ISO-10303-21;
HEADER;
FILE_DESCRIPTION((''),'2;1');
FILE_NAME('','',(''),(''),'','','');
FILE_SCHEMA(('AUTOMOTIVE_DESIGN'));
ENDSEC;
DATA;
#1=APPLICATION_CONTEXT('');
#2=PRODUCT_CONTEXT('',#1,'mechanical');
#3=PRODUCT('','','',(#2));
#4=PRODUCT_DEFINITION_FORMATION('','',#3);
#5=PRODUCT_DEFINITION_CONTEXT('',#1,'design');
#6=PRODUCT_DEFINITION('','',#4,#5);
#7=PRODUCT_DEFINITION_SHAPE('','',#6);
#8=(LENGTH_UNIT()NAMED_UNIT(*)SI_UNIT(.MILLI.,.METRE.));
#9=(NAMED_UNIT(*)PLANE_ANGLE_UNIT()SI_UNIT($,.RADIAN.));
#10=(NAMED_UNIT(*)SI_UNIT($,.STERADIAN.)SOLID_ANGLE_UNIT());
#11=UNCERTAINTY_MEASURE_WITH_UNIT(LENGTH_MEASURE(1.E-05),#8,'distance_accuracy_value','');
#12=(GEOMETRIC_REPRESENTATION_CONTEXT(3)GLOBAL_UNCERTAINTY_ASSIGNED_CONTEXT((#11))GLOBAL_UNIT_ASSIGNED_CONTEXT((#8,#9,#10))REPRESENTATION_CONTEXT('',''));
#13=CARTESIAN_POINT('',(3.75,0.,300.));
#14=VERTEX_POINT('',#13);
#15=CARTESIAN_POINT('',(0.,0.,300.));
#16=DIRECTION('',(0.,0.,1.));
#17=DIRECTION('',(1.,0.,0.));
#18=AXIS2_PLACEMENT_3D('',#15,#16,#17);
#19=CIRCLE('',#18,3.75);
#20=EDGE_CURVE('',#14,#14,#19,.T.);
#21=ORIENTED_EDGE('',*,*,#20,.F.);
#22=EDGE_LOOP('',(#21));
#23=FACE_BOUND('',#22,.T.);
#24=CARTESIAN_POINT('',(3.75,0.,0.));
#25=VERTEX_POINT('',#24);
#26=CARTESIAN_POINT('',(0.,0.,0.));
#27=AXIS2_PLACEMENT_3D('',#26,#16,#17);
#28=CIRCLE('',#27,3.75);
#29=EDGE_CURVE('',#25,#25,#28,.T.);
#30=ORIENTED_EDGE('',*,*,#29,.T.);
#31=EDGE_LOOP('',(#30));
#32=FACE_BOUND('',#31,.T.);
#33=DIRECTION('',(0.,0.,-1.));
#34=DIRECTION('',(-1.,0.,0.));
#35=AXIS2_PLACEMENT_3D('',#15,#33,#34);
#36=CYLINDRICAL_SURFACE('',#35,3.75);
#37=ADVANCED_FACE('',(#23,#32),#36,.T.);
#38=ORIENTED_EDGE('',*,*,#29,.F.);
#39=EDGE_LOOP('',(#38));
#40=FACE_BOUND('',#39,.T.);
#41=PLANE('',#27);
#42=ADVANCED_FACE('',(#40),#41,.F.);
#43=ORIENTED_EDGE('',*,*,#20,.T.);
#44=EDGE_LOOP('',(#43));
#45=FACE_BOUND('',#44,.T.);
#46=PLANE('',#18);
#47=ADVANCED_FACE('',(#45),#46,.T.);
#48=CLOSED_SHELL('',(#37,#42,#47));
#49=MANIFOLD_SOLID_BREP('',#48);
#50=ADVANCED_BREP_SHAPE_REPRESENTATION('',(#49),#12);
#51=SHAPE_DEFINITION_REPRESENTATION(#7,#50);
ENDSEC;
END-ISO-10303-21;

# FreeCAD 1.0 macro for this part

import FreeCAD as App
import Part
import Sketcher

V = App.Vector

doc = App.newDocument("Part")
body = doc.addObject("PartDesign::Body", "Body")

sketch1 = body.newObject("Sketcher::SketchObject", "Sketch")
sketch1.AttachmentSupport = (doc.getObject("XY_Plane"), [""])
sketch1.MapMode = "FlatFace"
sketch1.addGeometry(Part.Circle(V(0, 0, 0), V(0, 0, 1), 3.8), False)
sketch1.addConstraint(Sketcher.Constraint("Coincident", 0, 3, -1, 1))
sketch1.addConstraint(Sketcher.Constraint("Diameter", 0, 7.5))
pad1 = body.newObject("PartDesign::Pad", "Pad")
pad1.Profile = sketch1
pad1.Length = 300

doc.recompute()
